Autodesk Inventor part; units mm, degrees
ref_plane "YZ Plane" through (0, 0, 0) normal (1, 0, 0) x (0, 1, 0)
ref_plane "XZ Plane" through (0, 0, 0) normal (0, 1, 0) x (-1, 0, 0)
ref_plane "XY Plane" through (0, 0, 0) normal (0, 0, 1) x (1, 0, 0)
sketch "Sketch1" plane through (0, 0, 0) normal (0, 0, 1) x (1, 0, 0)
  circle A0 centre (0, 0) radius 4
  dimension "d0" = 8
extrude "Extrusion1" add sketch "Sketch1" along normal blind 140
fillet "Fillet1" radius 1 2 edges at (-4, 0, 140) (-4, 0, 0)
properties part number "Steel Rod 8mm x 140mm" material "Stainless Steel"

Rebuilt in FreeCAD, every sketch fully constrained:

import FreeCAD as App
import Part
import Sketcher
from FreeCAD import Vector
Q = App.Units.Quantity


def edges_at(feature, points):
    """Names of the edges that pass closest to the given points."""
    edges = feature.Shape.Edges
    near = lambda p: min(range(len(edges)), key=lambda i: edges[i].distToShape(Part.Vertex(*p))[0])
    return sorted({f"Edge{near(p) + 1}" for p in points})

doc = App.newDocument("Part")
body = doc.addObject("PartDesign::Body", "Body")

sketch1 = body.newObject("Sketcher::SketchObject", "Sketch")
sketch1.AttachmentSupport = (doc.getObject("XY_Plane"), [""])
sketch1.MapMode = "FlatFace"
sketch1.addGeometry(Part.Circle(Vector(0, 0, 0), Vector(0, 0, 1), 4), False)
sketch1.addConstraint(Sketcher.Constraint("Coincident", 0, 3, -1, 1))
sketch1.addConstraint(Sketcher.Constraint("Diameter", 0, Q("8 mm")))
pad1 = body.newObject("PartDesign::Pad", "Pad")
pad1.Profile = sketch1
pad1.Length = 140
doc.recompute()

fillet = body.newObject("PartDesign::Fillet", "Fillet")
fillet.Base = (pad1, edges_at(pad1, [(-4, 0, 140), (-4, 0, 0)]))
fillet.Radius = 1

doc.recompute()
